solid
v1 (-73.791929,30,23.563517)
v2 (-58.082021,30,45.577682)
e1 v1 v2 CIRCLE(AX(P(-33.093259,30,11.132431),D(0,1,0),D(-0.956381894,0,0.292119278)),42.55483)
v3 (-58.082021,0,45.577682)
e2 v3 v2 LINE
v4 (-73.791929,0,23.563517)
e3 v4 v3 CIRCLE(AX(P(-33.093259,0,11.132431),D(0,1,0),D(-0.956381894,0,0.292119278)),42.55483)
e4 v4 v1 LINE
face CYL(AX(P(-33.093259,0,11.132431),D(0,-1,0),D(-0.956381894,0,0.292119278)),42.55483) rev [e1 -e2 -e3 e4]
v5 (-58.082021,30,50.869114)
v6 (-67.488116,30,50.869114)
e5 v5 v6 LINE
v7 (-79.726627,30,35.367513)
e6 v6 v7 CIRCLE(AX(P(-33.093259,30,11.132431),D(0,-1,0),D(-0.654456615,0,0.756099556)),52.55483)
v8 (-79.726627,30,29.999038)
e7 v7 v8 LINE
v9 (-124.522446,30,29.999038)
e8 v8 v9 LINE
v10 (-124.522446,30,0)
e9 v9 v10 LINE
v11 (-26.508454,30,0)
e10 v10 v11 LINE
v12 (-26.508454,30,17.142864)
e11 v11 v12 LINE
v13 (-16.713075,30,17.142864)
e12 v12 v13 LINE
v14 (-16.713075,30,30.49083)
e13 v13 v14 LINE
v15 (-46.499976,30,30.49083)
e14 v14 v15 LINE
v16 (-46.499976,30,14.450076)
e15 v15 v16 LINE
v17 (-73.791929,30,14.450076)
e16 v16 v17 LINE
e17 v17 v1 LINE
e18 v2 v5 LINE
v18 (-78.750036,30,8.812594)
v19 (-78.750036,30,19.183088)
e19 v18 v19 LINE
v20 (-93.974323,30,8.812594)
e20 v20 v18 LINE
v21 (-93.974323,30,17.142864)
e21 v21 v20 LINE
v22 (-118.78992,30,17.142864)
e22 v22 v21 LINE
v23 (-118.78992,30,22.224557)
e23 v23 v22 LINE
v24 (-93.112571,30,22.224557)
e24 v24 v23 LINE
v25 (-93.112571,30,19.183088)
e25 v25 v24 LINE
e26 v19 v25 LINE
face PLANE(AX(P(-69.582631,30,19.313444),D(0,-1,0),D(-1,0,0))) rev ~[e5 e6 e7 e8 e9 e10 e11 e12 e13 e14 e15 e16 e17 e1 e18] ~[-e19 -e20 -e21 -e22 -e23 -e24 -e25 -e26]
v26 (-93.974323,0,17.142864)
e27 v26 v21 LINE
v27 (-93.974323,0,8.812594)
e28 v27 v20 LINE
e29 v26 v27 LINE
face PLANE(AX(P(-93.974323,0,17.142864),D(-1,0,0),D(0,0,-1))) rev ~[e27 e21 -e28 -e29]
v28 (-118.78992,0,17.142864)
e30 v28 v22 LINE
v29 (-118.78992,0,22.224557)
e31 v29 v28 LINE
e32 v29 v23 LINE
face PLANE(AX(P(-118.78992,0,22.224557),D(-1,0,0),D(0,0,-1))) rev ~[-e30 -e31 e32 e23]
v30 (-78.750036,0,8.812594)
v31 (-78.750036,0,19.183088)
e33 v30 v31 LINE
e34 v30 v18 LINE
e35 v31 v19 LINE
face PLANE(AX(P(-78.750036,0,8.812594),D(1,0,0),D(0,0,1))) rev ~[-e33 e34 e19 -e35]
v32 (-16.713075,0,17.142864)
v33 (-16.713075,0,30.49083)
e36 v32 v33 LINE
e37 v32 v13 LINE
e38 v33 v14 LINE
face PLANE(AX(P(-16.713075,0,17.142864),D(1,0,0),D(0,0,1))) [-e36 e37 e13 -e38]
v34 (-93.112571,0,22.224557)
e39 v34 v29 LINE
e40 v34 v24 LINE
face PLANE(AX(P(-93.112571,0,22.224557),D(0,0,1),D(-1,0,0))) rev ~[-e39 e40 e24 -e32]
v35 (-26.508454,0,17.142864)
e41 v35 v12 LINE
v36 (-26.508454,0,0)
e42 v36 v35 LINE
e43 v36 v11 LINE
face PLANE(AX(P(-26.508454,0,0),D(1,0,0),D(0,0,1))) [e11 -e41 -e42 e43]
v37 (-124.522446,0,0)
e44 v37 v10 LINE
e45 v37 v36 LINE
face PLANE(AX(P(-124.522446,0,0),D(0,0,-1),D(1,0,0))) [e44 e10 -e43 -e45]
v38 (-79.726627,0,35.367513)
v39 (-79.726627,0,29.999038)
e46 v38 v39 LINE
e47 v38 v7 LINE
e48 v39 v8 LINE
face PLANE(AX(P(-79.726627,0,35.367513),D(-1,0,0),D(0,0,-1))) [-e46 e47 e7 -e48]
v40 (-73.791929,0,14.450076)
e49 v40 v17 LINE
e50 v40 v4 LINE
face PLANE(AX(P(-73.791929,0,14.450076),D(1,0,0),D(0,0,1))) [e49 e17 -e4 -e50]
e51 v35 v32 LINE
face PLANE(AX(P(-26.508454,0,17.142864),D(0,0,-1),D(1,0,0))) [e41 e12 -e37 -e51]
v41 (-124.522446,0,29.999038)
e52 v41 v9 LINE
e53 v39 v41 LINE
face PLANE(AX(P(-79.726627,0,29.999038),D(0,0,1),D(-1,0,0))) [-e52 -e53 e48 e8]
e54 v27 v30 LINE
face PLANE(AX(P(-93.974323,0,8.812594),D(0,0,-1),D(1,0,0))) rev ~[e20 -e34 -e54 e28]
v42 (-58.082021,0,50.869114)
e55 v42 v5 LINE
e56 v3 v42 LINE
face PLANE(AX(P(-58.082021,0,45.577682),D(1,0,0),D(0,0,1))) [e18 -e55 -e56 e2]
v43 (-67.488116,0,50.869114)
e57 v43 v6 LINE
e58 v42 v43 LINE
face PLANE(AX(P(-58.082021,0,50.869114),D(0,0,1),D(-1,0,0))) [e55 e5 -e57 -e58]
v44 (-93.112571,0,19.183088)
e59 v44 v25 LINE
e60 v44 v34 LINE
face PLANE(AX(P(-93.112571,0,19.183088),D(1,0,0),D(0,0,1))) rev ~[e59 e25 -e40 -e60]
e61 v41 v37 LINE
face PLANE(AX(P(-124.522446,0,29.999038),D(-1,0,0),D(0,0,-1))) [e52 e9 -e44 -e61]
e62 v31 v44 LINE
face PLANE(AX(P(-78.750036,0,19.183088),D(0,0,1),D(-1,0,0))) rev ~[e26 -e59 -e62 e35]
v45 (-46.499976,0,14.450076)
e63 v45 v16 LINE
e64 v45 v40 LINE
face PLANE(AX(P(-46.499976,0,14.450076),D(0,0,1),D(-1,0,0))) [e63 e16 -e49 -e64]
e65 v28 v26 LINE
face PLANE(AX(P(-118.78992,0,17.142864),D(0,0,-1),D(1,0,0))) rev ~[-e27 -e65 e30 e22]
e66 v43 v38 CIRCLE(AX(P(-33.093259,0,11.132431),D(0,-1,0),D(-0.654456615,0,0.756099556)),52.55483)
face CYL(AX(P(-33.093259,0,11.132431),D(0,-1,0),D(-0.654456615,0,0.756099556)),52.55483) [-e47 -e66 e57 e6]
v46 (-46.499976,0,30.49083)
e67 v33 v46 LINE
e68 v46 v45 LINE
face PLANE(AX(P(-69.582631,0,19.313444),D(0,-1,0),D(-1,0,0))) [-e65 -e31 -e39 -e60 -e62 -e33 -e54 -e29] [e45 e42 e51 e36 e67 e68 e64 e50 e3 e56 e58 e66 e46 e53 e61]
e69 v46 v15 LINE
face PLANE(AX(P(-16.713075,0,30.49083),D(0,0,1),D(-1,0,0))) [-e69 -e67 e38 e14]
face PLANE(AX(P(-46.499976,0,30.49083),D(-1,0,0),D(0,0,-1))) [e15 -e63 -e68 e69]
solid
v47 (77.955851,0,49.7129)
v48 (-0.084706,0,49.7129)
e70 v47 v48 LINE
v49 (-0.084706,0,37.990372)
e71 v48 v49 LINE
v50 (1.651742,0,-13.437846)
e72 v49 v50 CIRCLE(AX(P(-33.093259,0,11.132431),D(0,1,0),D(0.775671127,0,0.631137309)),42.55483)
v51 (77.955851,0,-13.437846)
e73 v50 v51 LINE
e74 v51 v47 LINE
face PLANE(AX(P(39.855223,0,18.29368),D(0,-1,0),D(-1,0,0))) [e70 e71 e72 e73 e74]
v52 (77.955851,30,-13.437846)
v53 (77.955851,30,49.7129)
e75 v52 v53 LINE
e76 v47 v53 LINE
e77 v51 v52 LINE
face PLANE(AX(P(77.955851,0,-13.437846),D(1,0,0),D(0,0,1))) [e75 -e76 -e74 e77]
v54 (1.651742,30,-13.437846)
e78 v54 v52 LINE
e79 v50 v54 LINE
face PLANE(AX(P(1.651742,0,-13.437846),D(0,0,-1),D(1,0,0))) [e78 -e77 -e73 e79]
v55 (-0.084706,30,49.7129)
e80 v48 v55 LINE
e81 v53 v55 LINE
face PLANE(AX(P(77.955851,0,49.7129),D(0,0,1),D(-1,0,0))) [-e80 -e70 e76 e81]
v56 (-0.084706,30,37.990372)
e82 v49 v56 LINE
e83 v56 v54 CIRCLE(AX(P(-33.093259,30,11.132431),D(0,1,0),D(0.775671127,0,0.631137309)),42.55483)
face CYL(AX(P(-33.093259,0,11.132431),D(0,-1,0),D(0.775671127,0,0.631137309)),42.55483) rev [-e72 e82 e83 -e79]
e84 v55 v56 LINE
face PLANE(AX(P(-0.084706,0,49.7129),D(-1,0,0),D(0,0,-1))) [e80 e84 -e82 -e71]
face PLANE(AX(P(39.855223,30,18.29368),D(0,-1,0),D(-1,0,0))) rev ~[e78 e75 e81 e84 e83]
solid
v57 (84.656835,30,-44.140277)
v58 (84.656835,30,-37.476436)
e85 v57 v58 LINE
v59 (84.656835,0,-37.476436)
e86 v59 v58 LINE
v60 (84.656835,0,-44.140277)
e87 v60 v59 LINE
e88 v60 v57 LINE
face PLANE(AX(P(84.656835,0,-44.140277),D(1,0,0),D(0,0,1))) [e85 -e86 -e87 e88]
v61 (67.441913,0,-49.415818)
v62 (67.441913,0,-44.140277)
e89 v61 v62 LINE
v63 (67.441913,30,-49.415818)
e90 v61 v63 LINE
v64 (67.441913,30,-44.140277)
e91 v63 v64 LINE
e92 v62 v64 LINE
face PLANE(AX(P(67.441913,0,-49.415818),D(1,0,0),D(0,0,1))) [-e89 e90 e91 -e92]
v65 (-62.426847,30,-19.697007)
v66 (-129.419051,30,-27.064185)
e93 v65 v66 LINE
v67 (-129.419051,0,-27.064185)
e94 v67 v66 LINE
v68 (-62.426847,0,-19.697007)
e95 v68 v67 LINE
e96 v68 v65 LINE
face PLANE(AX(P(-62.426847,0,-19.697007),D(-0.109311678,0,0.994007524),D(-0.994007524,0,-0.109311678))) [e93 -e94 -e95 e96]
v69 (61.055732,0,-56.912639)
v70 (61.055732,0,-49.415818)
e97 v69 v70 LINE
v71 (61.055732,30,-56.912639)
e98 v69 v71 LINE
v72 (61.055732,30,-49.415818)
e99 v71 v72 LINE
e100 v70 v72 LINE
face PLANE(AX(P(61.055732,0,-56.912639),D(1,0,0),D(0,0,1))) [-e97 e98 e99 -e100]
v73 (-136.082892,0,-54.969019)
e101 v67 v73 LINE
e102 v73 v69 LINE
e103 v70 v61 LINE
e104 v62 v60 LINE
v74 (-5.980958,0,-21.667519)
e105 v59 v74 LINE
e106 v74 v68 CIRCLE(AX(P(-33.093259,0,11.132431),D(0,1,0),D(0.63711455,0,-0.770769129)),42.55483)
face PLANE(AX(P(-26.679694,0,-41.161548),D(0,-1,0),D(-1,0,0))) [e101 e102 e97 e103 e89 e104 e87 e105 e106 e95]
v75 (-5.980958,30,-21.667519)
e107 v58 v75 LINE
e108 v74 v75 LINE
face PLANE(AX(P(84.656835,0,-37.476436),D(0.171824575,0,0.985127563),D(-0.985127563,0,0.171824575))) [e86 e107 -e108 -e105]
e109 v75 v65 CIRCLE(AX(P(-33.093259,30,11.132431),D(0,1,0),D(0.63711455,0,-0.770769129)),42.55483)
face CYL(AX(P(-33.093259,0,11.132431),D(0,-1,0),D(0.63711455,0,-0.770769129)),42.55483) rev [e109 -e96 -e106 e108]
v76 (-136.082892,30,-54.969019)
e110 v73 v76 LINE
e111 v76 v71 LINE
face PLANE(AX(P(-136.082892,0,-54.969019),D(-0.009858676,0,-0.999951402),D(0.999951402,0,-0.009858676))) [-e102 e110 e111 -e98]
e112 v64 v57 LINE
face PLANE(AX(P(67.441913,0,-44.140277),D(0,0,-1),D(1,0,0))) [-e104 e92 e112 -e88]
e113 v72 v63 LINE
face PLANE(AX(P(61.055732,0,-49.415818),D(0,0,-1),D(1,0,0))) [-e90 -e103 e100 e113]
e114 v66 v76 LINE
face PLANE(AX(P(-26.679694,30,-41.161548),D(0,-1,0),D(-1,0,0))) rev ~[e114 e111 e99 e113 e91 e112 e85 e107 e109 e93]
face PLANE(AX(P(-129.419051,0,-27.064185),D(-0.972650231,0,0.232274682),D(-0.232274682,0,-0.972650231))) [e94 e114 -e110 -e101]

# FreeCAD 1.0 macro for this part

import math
import FreeCAD as App
import Part
import Sketcher
Q = App.Units.Quantity

doc = App.newDocument("Part")
body = doc.addObject("PartDesign::Body", "Body")

sketch1 = body.newObject("Sketcher::SketchObject", "Sketch")
sketch1.AttachmentSupport = (doc.getObject("XZ_Plane"), [""])
sketch1.MapMode = "FlatFace"
sketch1.addGeometry(Part.LineSegment(App.Vector(61, -57, 0), App.Vector(-136, -55, 0)), False)
sketch1.addGeometry(Part.LineSegment(App.Vector(-136, -55, 0), App.Vector(-129, -27, 0)), False)
sketch1.addGeometry(Part.LineSegment(App.Vector(-129, -27, 0), App.Vector(-62, -20, 0)), False)
sketch1.addGeometry(Part.ArcOfCircle(Part.Circle(App.Vector(-33, 11, 0), App.Vector(0, 0, 1), 43), math.radians(-134), math.radians(-50)), False)
sketch1.addGeometry(Part.LineSegment(App.Vector(-6, -22, 0), App.Vector(85, -37, 0)), False)
sketch1.addGeometry(Part.LineSegment(App.Vector(85, -37, 0), App.Vector(85, -44, 0)), False)
sketch1.addGeometry(Part.LineSegment(App.Vector(85, -44, 0), App.Vector(67, -44, 0)), False)
sketch1.addGeometry(Part.LineSegment(App.Vector(67, -44, 0), App.Vector(67, -49, 0)), False)
sketch1.addGeometry(Part.LineSegment(App.Vector(67, -49, 0), App.Vector(61, -49, 0)), False)
sketch1.addGeometry(Part.LineSegment(App.Vector(61, -49, 0), App.Vector(61, -57, 0)), False)
sketch1.addConstraint(Sketcher.Constraint("Coincident", 0, 2, 1, 1))
sketch1.addConstraint(Sketcher.Constraint("Coincident", 1, 2, 2, 1))
sketch1.addConstraint(Sketcher.Constraint("Coincident", 2, 2, 3, 1))
sketch1.addConstraint(Sketcher.Constraint("Coincident", 3, 2, 4, 1))
sketch1.addConstraint(Sketcher.Constraint("Coincident", 4, 2, 5, 1))
sketch1.addConstraint(Sketcher.Constraint("Coincident", 5, 2, 6, 1))
sketch1.addConstraint(Sketcher.Constraint("Coincident", 6, 2, 7, 1))
sketch1.addConstraint(Sketcher.Constraint("Coincident", 7, 2, 8, 1))
sketch1.addConstraint(Sketcher.Constraint("Coincident", 8, 2, 9, 1))
sketch1.addConstraint(Sketcher.Constraint("Coincident", 9, 2, 0, 1))
sketch1.addConstraint(Sketcher.Constraint("Vertical", 5))
sketch1.addConstraint(Sketcher.Constraint("Horizontal", 6))
sketch1.addConstraint(Sketcher.Constraint("Vertical", 7))
sketch1.addConstraint(Sketcher.Constraint("Horizontal", 8))
sketch1.addConstraint(Sketcher.Constraint("Vertical", 9))
sketch1.addConstraint(Sketcher.Constraint("Radius", 3, Q("42.55483 mm")))
sketch1.addConstraint(Sketcher.Constraint("DistanceX", 8, 2, 8, 1, Q("6.386181 mm")))
sketch1.addConstraint(Sketcher.Constraint("DistanceY", 5, 2, 5, 1, Q("6.663841 mm")))
sketch1.addConstraint(Sketcher.Constraint("DistanceY", 7, 2, 7, 1, Q("5.275541 mm")))
sketch1.addConstraint(Sketcher.Constraint("DistanceY", 9, 2, 9, 1, Q("7.496821 mm")))
sketch1.addConstraint(Sketcher.Constraint("DistanceX", 3, 3, 3, 2, Q("27.112302 mm")))
sketch1.addConstraint(Sketcher.Constraint("DistanceY", 0, 2, 3, 2, Q("33.3015 mm")))
sketch1.addConstraint(Sketcher.Constraint("DistanceY", 7, 2, 3, 2, Q("27.748299 mm")))
sketch1.addConstraint(Sketcher.Constraint("Distance", 4, Q("92.006148 mm")))
sketch1.addConstraint(Sketcher.Constraint("DistanceX", 6, 2, 6, 1, Q("17.214922 mm")))
sketch1.addConstraint(Sketcher.Constraint("DistanceX", 3, 3, -1, 1, Q("33.093259 mm")))
sketch1.addConstraint(Sketcher.Constraint("DistanceY", -1, 1, 3, 3, Q("11.132431 mm")))
sketch1.addConstraint(Sketcher.Constraint("DistanceX", 1, 2, -1, 1, Q("129.419051 mm")))
sketch1.addConstraint(Sketcher.Constraint("DistanceX", 0, 2, 1, 2, Q("6.663841 mm")))
sketch1.addConstraint(Sketcher.Constraint("DistanceY", 0, 2, 2, 2, Q("35.272011 mm")))
sketch1.addConstraint(Sketcher.Constraint("DistanceY", 4, 2, 1, 2, Q("10.412251 mm")))
pad1 = body.newObject("PartDesign::Pad", "Pad")
pad1.Profile = sketch1
pad1.Length = 30
pad1.Reversed = True
body2 = doc.addObject("PartDesign::Body", "Body001")

sketch2 = body2.newObject("Sketcher::SketchObject", "Sketch001")
sketch2.AttachmentSupport = (doc.getObject("XZ_Plane001"), [""])
sketch2.MapMode = "FlatFace"
sketch2.addGeometry(Part.LineSegment(App.Vector(-26.5, 17.1, 0), App.Vector(-26.5, 0, 0)), False)
sketch2.addGeometry(Part.LineSegment(App.Vector(-26.5, 0, 0), App.Vector(-124.5, 0, 0)), False)
sketch2.addGeometry(Part.LineSegment(App.Vector(-124.5, 0, 0), App.Vector(-124.5, 30, 0)), False)
sketch2.addGeometry(Part.LineSegment(App.Vector(-124.5, 30, 0), App.Vector(-79.7, 30, 0)), False)
sketch2.addGeometry(Part.LineSegment(App.Vector(-79.7, 30, 0), App.Vector(-79.7, 35.4, 0)), False)
sketch2.addGeometry(Part.ArcOfCircle(Part.Circle(App.Vector(-33.1, 11.1, 0), App.Vector(0, 0, 1), 52.6), math.radians(131), math.radians(153)), False)
sketch2.addGeometry(Part.LineSegment(App.Vector(-67.5, 50.9, 0), App.Vector(-58.1, 50.9, 0)), False)
sketch2.addGeometry(Part.LineSegment(App.Vector(-58.1, 50.9, 0), App.Vector(-58.1, 45.6, 0)), False)
sketch2.addGeometry(Part.ArcOfCircle(Part.Circle(App.Vector(-33.1, 11.1, 0), App.Vector(0, 0, 1), 42.6), math.radians(126), math.radians(163)), False)
sketch2.addGeometry(Part.LineSegment(App.Vector(-73.8, 23.6, 0), App.Vector(-73.8, 14.5, 0)), False)
sketch2.addGeometry(Part.LineSegment(App.Vector(-73.8, 14.5, 0), App.Vector(-46.5, 14.5, 0)), False)
sketch2.addGeometry(Part.LineSegment(App.Vector(-46.5, 14.5, 0), App.Vector(-46.5, 30.5, 0)), False)
sketch2.addGeometry(Part.LineSegment(App.Vector(-46.5, 30.5, 0), App.Vector(-16.7, 30.5, 0)), False)
sketch2.addGeometry(Part.LineSegment(App.Vector(-16.7, 30.5, 0), App.Vector(-16.7, 17.1, 0)), False)
sketch2.addGeometry(Part.LineSegment(App.Vector(-16.7, 17.1, 0), App.Vector(-26.5, 17.1, 0)), False)
sketch2.addGeometry(Part.LineSegment(App.Vector(-118.8, 17.1, 0), App.Vector(-94, 17.1, 0)), False)
sketch2.addGeometry(Part.LineSegment(App.Vector(-94, 17.1, 0), App.Vector(-94, 8.8, 0)), False)
sketch2.addGeometry(Part.LineSegment(App.Vector(-94, 8.8, 0), App.Vector(-78.8, 8.8, 0)), False)
sketch2.addGeometry(Part.LineSegment(App.Vector(-78.8, 8.8, 0), App.Vector(-78.8, 19.2, 0)), False)
sketch2.addGeometry(Part.LineSegment(App.Vector(-78.8, 19.2, 0), App.Vector(-93.1, 19.2, 0)), False)
sketch2.addGeometry(Part.LineSegment(App.Vector(-93.1, 19.2, 0), App.Vector(-93.1, 22.2, 0)), False)
sketch2.addGeometry(Part.LineSegment(App.Vector(-93.1, 22.2, 0), App.Vector(-118.8, 22.2, 0)), False)
sketch2.addGeometry(Part.LineSegment(App.Vector(-118.8, 22.2, 0), App.Vector(-118.8, 17.1, 0)), False)
sketch2.addConstraint(Sketcher.Constraint("Coincident", 0, 2, 1, 1))
sketch2.addConstraint(Sketcher.Constraint("Coincident", 1, 2, 2, 1))
sketch2.addConstraint(Sketcher.Constraint("Coincident", 2, 2, 3, 1))
sketch2.addConstraint(Sketcher.Constraint("Coincident", 3, 2, 4, 1))
sketch2.addConstraint(Sketcher.Constraint("Coincident", 4, 2, 5, 2))
sketch2.addConstraint(Sketcher.Constraint("Coincident", 5, 1, 6, 1))
sketch2.addConstraint(Sketcher.Constraint("Coincident", 6, 2, 7, 1))
sketch2.addConstraint(Sketcher.Constraint("Coincident", 7, 2, 8, 1))
sketch2.addConstraint(Sketcher.Constraint("Coincident", 8, 2, 9, 1))
sketch2.addConstraint(Sketcher.Constraint("Coincident", 9, 2, 10, 1))
sketch2.addConstraint(Sketcher.Constraint("Coincident", 10, 2, 11, 1))
sketch2.addConstraint(Sketcher.Constraint("Coincident", 11, 2, 12, 1))
sketch2.addConstraint(Sketcher.Constraint("Coincident", 12, 2, 13, 1))
sketch2.addConstraint(Sketcher.Constraint("Coincident", 13, 2, 14, 1))
sketch2.addConstraint(Sketcher.Constraint("Coincident", 14, 2, 0, 1))
sketch2.addConstraint(Sketcher.Constraint("Coincident", 15, 2, 16, 1))
sketch2.addConstraint(Sketcher.Constraint("Coincident", 16, 2, 17, 1))
sketch2.addConstraint(Sketcher.Constraint("Coincident", 17, 2, 18, 1))
sketch2.addConstraint(Sketcher.Constraint("Coincident", 18, 2, 19, 1))
sketch2.addConstraint(Sketcher.Constraint("Coincident", 19, 2, 20, 1))
sketch2.addConstraint(Sketcher.Constraint("Coincident", 20, 2, 21, 1))
sketch2.addConstraint(Sketcher.Constraint("Coincident", 21, 2, 22, 1))
sketch2.addConstraint(Sketcher.Constraint("Coincident", 22, 2, 15, 1))
sketch2.addConstraint(Sketcher.Constraint("Vertical", 0))
sketch2.addConstraint(Sketcher.Constraint("Horizontal", 1))
sketch2.addConstraint(Sketcher.Constraint("Vertical", 2))
sketch2.addConstraint(Sketcher.Constraint("Horizontal", 3))
sketch2.addConstraint(Sketcher.Constraint("Vertical", 4))
sketch2.addConstraint(Sketcher.Constraint("Horizontal", 6))
sketch2.addConstraint(Sketcher.Constraint("Vertical", 7))
sketch2.addConstraint(Sketcher.Constraint("Vertical", 9))
sketch2.addConstraint(Sketcher.Constraint("Horizontal", 10))
sketch2.addConstraint(Sketcher.Constraint("Vertical", 11))
sketch2.addConstraint(Sketcher.Constraint("Horizontal", 12))
sketch2.addConstraint(Sketcher.Constraint("Vertical", 13))
sketch2.addConstraint(Sketcher.Constraint("Horizontal", 14))
sketch2.addConstraint(Sketcher.Constraint("Horizontal", 15))
sketch2.addConstraint(Sketcher.Constraint("Vertical", 16))
sketch2.addConstraint(Sketcher.Constraint("Horizontal", 17))
sketch2.addConstraint(Sketcher.Constraint("Vertical", 18))
sketch2.addConstraint(Sketcher.Constraint("Horizontal", 19))
sketch2.addConstraint(Sketcher.Constraint("Vertical", 20))
sketch2.addConstraint(Sketcher.Constraint("Horizontal", 21))
sketch2.addConstraint(Sketcher.Constraint("Vertical", 22))
sketch2.addConstraint(Sketcher.Constraint("Coincident", 8, 3, 5, 3))
sketch2.addConstraint(Sketcher.Constraint("PointOnObject", 0, 2, -1))
sketch2.addConstraint(Sketcher.Constraint("Horizontal", 14, 2, 15, 2))
sketch2.addConstraint(Sketcher.Constraint("Radius", 5, Q("52.55483 mm")))
sketch2.addConstraint(Sketcher.Constraint("Radius", 8, Q("42.55483 mm")))
sketch2.addConstraint(Sketcher.Constraint("DistanceX", 12, 1, 12, 2, Q("29.786901 mm")))
sketch2.addConstraint(Sketcher.Constraint("DistanceX", 3, 1, 3, 2, Q("44.795819 mm")))
sketch2.addConstraint(Sketcher.Constraint("DistanceX", 14, 2, 14, 1, Q("9.795379 mm")))
sketch2.addConstraint(Sketcher.Constraint("DistanceX", 21, 2, 21, 1, Q("25.677349 mm")))
sketch2.addConstraint(Sketcher.Constraint("DistanceY", 9, 2, 9, 1, Q("9.113441 mm")))
sketch2.addConstraint(Sketcher.Constraint("DistanceY", 16, 2, 16, 1, Q("8.330271 mm")))
sketch2.addConstraint(Sketcher.Constraint("DistanceY", 20, 1, 20, 2, Q("3.041469 mm")))
sketch2.addConstraint(Sketcher.Constraint("DistanceY", 4, 2, 5, 1, Q("15.501602 mm")))
sketch2.addConstraint(Sketcher.Constraint("DistanceX", 3, 2, 8, 2, Q("5.934698 mm")))
sketch2.addConstraint(Sketcher.Constraint("DistanceY", 8, 3, 11, 2, Q("19.3584 mm")))
sketch2.addConstraint(Sketcher.Constraint("DistanceX", 1, 2, 1, 1, Q("98.013992 mm")))
sketch2.addConstraint(Sketcher.Constraint("DistanceX", 6, 1, 6, 2, Q("9.406095 mm")))
sketch2.addConstraint(Sketcher.Constraint("DistanceX", 15, 1, 15, 2, Q("24.815597 mm")))
sketch2.addConstraint(Sketcher.Constraint("DistanceX", 17, 1, 17, 2, Q("15.224287 mm")))
sketch2.addConstraint(Sketcher.Constraint("DistanceY", 0, 2, 0, 1, Q("17.142864 mm")))
sketch2.addConstraint(Sketcher.Constraint("DistanceY", 2, 1, 2, 2, Q("29.999038 mm")))
sketch2.addConstraint(Sketcher.Constraint("DistanceY", 4, 1, 4, 2, Q("5.368475 mm")))
sketch2.addConstraint(Sketcher.Constraint("DistanceY", 7, 2, 7, 1, Q("5.291432 mm")))
sketch2.addConstraint(Sketcher.Constraint("DistanceY", 18, 1, 18, 2, Q("10.370494 mm")))
sketch2.addConstraint(Sketcher.Constraint("DistanceX", 5, 3, -1, 1, Q("33.093259 mm")))
sketch2.addConstraint(Sketcher.Constraint("DistanceX", 19, 2, -1, 1, Q("93.112571 mm")))
pad2 = body2.newObject("PartDesign::Pad", "Pad001")
pad2.Profile = sketch2
pad2.Length = 30
pad2.Reversed = True
body3 = doc.addObject("PartDesign::Body", "Body002")

sketch3 = body3.newObject("Sketcher::SketchObject", "Sketch002")
sketch3.AttachmentSupport = (doc.getObject("XZ_Plane002"), [""])
sketch3.MapMode = "FlatFace"
sketch3.addGeometry(Part.LineSegment(App.Vector(78, -13, 0), App.Vector(2, -13, 0)), False)
sketch3.addGeometry(Part.ArcOfCircle(Part.Circle(App.Vector(-33, 11, 0), App.Vector(0, 0, 1), 43), math.radians(-35), math.radians(39)), False)
sketch3.addGeometry(Part.LineSegment(App.Vector(0, 38, 0), App.Vector(0, 50, 0)), False)
sketch3.addGeometry(Part.LineSegment(App.Vector(0, 50, 0), App.Vector(78, 50, 0)), False)
sketch3.addGeometry(Part.LineSegment(App.Vector(78, 50, 0), App.Vector(78, -13, 0)), False)
sketch3.addConstraint(Sketcher.Constraint("Coincident", 0, 2, 1, 1))
sketch3.addConstraint(Sketcher.Constraint("Coincident", 1, 2, 2, 1))
sketch3.addConstraint(Sketcher.Constraint("Coincident", 2, 2, 3, 1))
sketch3.addConstraint(Sketcher.Constraint("Coincident", 3, 2, 4, 1))
sketch3.addConstraint(Sketcher.Constraint("Coincident", 4, 2, 0, 1))
sketch3.addConstraint(Sketcher.Constraint("Horizontal", 0))
sketch3.addConstraint(Sketcher.Constraint("Vertical", 2))
sketch3.addConstraint(Sketcher.Constraint("Horizontal", 3))
sketch3.addConstraint(Sketcher.Constraint("Vertical", 4))
sketch3.addConstraint(Sketcher.Constraint("Radius", 1, Q("42.55483 mm")))
sketch3.addConstraint(Sketcher.Constraint("DistanceX", 1, 3, 0, 2, Q("34.745001 mm")))
sketch3.addConstraint(Sketcher.Constraint("DistanceX", 0, 2, 0, 1, Q("76.304109 mm")))
sketch3.addConstraint(Sketcher.Constraint("DistanceY", 2, 1, 2, 2, Q("11.722529 mm")))
sketch3.addConstraint(Sketcher.Constraint("DistanceY", -1, 1, 2, 2, Q("49.7129 mm")))
sketch3.addConstraint(Sketcher.Constraint("DistanceX", 3, 1, 3, 2, Q("78.040557 mm")))
sketch3.addConstraint(Sketcher.Constraint("DistanceX", 1, 3, -1, 1, Q("33.093259 mm")))
pad3 = body3.newObject("PartDesign::Pad", "Pad002")
pad3.Profile = sketch3
pad3.Length = 30
pad3.Reversed = True

doc.recompute()
